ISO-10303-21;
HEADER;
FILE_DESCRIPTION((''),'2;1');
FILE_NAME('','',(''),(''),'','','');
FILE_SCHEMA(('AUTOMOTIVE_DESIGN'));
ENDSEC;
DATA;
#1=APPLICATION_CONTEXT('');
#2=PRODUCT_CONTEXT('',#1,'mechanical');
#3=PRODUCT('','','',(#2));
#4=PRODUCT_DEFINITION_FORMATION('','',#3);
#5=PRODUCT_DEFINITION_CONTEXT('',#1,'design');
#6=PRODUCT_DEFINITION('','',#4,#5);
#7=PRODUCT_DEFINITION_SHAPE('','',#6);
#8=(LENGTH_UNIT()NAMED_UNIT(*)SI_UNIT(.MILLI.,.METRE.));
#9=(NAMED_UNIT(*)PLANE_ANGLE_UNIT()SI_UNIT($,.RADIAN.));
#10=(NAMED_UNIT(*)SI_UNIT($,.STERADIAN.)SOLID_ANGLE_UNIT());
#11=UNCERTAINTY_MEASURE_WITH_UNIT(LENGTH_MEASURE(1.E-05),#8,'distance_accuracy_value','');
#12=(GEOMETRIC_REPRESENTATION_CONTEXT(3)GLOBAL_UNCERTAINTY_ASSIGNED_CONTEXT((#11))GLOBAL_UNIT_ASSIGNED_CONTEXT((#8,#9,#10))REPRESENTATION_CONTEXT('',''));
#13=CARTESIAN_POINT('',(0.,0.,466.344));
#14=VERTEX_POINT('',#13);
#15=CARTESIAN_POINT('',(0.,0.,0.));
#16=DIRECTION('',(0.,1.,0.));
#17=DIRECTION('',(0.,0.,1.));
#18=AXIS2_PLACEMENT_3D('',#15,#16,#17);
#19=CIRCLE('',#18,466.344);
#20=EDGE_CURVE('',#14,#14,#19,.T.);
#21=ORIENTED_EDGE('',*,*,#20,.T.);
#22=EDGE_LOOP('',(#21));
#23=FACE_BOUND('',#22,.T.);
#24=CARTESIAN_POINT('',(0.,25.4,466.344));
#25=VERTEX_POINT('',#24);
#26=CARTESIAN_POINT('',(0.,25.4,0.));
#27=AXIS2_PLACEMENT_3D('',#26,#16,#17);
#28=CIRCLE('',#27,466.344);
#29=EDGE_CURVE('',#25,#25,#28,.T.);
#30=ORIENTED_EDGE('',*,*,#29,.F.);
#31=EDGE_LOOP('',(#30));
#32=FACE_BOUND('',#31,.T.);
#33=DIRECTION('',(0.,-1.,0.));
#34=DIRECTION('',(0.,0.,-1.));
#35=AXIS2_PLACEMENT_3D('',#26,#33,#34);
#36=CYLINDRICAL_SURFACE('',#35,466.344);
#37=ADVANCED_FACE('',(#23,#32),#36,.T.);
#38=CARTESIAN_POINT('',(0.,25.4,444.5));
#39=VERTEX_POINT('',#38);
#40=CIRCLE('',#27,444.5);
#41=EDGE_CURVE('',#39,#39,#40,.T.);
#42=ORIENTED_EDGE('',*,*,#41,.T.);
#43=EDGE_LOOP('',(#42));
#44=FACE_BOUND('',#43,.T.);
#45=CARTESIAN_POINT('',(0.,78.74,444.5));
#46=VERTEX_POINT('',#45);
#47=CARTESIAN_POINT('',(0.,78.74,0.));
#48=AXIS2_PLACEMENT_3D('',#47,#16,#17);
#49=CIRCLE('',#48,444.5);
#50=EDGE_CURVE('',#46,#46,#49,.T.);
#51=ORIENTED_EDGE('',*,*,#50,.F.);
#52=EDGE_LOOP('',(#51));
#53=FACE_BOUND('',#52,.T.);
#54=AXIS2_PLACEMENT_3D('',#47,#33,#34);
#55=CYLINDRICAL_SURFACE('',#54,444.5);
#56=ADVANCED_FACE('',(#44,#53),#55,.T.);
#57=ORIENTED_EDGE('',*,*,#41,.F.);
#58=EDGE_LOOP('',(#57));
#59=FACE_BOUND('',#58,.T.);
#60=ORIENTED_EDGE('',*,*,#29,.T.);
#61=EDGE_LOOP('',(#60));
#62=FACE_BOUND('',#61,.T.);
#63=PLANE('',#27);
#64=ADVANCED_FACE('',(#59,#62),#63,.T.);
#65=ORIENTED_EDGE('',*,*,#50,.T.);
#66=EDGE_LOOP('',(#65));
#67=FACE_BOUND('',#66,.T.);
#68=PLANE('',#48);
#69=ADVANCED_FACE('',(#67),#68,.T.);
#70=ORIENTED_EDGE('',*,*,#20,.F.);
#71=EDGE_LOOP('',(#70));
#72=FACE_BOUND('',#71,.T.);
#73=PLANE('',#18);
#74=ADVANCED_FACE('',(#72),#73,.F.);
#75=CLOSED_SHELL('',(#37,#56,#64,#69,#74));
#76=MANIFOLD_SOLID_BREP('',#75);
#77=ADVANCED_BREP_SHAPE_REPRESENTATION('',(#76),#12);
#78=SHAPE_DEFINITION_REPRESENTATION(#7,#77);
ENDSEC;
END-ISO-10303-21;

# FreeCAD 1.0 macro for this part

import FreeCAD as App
import Part
import Sketcher
from FreeCAD import Vector
Q = App.Units.Quantity

doc = App.newDocument("Part")
body = doc.addObject("PartDesign::Body", "Body")

# Sketch on XZ plane
sketch1 = body.newObject("Sketcher::SketchObject", "Sketch")
sketch1.AttachmentSupport = (doc.getObject("XZ_Plane"), [""])
sketch1.MapMode = "FlatFace"
sketch1.addGeometry(Part.Circle(Vector(0, 0, 0), Vector(0, 0, 1), 466.344), False)
sketch1.addConstraint(Sketcher.Constraint("Coincident", 0, 3, -1, 1))
sketch1.addConstraint(Sketcher.Constraint("Diameter", 0, Q("36.72 in")))
pad1 = body.newObject("PartDesign::Pad", "Pad")
pad1.Profile = sketch1
pad1.Length = Q("1 in")
pad1.Reversed = True

# Sketch on XZ plane
sketch2 = body.newObject("Sketcher::SketchObject", "Sketch001")
sketch2.AttachmentSupport = (doc.getObject("XZ_Plane"), [""])
sketch2.MapMode = "FlatFace"
sketch2.AttachmentOffset = App.Placement(Vector(0, 0, -1 * 25.4), App.Rotation())
sketch2.addGeometry(Part.Circle(Vector(0, 0, 0), Vector(0, 0, 1), 444.5), False)
sketch2.addConstraint(Sketcher.Constraint("Coincident", 0, 3, -1, 1))
sketch2.addConstraint(Sketcher.Constraint("Diameter", 0, Q("35 in")))
pad2 = body.newObject("PartDesign::Pad", "Pad001")
pad2.Profile = sketch2
pad2.Length = Q("2.1 in")
pad2.Reversed = True

doc.recompute()
